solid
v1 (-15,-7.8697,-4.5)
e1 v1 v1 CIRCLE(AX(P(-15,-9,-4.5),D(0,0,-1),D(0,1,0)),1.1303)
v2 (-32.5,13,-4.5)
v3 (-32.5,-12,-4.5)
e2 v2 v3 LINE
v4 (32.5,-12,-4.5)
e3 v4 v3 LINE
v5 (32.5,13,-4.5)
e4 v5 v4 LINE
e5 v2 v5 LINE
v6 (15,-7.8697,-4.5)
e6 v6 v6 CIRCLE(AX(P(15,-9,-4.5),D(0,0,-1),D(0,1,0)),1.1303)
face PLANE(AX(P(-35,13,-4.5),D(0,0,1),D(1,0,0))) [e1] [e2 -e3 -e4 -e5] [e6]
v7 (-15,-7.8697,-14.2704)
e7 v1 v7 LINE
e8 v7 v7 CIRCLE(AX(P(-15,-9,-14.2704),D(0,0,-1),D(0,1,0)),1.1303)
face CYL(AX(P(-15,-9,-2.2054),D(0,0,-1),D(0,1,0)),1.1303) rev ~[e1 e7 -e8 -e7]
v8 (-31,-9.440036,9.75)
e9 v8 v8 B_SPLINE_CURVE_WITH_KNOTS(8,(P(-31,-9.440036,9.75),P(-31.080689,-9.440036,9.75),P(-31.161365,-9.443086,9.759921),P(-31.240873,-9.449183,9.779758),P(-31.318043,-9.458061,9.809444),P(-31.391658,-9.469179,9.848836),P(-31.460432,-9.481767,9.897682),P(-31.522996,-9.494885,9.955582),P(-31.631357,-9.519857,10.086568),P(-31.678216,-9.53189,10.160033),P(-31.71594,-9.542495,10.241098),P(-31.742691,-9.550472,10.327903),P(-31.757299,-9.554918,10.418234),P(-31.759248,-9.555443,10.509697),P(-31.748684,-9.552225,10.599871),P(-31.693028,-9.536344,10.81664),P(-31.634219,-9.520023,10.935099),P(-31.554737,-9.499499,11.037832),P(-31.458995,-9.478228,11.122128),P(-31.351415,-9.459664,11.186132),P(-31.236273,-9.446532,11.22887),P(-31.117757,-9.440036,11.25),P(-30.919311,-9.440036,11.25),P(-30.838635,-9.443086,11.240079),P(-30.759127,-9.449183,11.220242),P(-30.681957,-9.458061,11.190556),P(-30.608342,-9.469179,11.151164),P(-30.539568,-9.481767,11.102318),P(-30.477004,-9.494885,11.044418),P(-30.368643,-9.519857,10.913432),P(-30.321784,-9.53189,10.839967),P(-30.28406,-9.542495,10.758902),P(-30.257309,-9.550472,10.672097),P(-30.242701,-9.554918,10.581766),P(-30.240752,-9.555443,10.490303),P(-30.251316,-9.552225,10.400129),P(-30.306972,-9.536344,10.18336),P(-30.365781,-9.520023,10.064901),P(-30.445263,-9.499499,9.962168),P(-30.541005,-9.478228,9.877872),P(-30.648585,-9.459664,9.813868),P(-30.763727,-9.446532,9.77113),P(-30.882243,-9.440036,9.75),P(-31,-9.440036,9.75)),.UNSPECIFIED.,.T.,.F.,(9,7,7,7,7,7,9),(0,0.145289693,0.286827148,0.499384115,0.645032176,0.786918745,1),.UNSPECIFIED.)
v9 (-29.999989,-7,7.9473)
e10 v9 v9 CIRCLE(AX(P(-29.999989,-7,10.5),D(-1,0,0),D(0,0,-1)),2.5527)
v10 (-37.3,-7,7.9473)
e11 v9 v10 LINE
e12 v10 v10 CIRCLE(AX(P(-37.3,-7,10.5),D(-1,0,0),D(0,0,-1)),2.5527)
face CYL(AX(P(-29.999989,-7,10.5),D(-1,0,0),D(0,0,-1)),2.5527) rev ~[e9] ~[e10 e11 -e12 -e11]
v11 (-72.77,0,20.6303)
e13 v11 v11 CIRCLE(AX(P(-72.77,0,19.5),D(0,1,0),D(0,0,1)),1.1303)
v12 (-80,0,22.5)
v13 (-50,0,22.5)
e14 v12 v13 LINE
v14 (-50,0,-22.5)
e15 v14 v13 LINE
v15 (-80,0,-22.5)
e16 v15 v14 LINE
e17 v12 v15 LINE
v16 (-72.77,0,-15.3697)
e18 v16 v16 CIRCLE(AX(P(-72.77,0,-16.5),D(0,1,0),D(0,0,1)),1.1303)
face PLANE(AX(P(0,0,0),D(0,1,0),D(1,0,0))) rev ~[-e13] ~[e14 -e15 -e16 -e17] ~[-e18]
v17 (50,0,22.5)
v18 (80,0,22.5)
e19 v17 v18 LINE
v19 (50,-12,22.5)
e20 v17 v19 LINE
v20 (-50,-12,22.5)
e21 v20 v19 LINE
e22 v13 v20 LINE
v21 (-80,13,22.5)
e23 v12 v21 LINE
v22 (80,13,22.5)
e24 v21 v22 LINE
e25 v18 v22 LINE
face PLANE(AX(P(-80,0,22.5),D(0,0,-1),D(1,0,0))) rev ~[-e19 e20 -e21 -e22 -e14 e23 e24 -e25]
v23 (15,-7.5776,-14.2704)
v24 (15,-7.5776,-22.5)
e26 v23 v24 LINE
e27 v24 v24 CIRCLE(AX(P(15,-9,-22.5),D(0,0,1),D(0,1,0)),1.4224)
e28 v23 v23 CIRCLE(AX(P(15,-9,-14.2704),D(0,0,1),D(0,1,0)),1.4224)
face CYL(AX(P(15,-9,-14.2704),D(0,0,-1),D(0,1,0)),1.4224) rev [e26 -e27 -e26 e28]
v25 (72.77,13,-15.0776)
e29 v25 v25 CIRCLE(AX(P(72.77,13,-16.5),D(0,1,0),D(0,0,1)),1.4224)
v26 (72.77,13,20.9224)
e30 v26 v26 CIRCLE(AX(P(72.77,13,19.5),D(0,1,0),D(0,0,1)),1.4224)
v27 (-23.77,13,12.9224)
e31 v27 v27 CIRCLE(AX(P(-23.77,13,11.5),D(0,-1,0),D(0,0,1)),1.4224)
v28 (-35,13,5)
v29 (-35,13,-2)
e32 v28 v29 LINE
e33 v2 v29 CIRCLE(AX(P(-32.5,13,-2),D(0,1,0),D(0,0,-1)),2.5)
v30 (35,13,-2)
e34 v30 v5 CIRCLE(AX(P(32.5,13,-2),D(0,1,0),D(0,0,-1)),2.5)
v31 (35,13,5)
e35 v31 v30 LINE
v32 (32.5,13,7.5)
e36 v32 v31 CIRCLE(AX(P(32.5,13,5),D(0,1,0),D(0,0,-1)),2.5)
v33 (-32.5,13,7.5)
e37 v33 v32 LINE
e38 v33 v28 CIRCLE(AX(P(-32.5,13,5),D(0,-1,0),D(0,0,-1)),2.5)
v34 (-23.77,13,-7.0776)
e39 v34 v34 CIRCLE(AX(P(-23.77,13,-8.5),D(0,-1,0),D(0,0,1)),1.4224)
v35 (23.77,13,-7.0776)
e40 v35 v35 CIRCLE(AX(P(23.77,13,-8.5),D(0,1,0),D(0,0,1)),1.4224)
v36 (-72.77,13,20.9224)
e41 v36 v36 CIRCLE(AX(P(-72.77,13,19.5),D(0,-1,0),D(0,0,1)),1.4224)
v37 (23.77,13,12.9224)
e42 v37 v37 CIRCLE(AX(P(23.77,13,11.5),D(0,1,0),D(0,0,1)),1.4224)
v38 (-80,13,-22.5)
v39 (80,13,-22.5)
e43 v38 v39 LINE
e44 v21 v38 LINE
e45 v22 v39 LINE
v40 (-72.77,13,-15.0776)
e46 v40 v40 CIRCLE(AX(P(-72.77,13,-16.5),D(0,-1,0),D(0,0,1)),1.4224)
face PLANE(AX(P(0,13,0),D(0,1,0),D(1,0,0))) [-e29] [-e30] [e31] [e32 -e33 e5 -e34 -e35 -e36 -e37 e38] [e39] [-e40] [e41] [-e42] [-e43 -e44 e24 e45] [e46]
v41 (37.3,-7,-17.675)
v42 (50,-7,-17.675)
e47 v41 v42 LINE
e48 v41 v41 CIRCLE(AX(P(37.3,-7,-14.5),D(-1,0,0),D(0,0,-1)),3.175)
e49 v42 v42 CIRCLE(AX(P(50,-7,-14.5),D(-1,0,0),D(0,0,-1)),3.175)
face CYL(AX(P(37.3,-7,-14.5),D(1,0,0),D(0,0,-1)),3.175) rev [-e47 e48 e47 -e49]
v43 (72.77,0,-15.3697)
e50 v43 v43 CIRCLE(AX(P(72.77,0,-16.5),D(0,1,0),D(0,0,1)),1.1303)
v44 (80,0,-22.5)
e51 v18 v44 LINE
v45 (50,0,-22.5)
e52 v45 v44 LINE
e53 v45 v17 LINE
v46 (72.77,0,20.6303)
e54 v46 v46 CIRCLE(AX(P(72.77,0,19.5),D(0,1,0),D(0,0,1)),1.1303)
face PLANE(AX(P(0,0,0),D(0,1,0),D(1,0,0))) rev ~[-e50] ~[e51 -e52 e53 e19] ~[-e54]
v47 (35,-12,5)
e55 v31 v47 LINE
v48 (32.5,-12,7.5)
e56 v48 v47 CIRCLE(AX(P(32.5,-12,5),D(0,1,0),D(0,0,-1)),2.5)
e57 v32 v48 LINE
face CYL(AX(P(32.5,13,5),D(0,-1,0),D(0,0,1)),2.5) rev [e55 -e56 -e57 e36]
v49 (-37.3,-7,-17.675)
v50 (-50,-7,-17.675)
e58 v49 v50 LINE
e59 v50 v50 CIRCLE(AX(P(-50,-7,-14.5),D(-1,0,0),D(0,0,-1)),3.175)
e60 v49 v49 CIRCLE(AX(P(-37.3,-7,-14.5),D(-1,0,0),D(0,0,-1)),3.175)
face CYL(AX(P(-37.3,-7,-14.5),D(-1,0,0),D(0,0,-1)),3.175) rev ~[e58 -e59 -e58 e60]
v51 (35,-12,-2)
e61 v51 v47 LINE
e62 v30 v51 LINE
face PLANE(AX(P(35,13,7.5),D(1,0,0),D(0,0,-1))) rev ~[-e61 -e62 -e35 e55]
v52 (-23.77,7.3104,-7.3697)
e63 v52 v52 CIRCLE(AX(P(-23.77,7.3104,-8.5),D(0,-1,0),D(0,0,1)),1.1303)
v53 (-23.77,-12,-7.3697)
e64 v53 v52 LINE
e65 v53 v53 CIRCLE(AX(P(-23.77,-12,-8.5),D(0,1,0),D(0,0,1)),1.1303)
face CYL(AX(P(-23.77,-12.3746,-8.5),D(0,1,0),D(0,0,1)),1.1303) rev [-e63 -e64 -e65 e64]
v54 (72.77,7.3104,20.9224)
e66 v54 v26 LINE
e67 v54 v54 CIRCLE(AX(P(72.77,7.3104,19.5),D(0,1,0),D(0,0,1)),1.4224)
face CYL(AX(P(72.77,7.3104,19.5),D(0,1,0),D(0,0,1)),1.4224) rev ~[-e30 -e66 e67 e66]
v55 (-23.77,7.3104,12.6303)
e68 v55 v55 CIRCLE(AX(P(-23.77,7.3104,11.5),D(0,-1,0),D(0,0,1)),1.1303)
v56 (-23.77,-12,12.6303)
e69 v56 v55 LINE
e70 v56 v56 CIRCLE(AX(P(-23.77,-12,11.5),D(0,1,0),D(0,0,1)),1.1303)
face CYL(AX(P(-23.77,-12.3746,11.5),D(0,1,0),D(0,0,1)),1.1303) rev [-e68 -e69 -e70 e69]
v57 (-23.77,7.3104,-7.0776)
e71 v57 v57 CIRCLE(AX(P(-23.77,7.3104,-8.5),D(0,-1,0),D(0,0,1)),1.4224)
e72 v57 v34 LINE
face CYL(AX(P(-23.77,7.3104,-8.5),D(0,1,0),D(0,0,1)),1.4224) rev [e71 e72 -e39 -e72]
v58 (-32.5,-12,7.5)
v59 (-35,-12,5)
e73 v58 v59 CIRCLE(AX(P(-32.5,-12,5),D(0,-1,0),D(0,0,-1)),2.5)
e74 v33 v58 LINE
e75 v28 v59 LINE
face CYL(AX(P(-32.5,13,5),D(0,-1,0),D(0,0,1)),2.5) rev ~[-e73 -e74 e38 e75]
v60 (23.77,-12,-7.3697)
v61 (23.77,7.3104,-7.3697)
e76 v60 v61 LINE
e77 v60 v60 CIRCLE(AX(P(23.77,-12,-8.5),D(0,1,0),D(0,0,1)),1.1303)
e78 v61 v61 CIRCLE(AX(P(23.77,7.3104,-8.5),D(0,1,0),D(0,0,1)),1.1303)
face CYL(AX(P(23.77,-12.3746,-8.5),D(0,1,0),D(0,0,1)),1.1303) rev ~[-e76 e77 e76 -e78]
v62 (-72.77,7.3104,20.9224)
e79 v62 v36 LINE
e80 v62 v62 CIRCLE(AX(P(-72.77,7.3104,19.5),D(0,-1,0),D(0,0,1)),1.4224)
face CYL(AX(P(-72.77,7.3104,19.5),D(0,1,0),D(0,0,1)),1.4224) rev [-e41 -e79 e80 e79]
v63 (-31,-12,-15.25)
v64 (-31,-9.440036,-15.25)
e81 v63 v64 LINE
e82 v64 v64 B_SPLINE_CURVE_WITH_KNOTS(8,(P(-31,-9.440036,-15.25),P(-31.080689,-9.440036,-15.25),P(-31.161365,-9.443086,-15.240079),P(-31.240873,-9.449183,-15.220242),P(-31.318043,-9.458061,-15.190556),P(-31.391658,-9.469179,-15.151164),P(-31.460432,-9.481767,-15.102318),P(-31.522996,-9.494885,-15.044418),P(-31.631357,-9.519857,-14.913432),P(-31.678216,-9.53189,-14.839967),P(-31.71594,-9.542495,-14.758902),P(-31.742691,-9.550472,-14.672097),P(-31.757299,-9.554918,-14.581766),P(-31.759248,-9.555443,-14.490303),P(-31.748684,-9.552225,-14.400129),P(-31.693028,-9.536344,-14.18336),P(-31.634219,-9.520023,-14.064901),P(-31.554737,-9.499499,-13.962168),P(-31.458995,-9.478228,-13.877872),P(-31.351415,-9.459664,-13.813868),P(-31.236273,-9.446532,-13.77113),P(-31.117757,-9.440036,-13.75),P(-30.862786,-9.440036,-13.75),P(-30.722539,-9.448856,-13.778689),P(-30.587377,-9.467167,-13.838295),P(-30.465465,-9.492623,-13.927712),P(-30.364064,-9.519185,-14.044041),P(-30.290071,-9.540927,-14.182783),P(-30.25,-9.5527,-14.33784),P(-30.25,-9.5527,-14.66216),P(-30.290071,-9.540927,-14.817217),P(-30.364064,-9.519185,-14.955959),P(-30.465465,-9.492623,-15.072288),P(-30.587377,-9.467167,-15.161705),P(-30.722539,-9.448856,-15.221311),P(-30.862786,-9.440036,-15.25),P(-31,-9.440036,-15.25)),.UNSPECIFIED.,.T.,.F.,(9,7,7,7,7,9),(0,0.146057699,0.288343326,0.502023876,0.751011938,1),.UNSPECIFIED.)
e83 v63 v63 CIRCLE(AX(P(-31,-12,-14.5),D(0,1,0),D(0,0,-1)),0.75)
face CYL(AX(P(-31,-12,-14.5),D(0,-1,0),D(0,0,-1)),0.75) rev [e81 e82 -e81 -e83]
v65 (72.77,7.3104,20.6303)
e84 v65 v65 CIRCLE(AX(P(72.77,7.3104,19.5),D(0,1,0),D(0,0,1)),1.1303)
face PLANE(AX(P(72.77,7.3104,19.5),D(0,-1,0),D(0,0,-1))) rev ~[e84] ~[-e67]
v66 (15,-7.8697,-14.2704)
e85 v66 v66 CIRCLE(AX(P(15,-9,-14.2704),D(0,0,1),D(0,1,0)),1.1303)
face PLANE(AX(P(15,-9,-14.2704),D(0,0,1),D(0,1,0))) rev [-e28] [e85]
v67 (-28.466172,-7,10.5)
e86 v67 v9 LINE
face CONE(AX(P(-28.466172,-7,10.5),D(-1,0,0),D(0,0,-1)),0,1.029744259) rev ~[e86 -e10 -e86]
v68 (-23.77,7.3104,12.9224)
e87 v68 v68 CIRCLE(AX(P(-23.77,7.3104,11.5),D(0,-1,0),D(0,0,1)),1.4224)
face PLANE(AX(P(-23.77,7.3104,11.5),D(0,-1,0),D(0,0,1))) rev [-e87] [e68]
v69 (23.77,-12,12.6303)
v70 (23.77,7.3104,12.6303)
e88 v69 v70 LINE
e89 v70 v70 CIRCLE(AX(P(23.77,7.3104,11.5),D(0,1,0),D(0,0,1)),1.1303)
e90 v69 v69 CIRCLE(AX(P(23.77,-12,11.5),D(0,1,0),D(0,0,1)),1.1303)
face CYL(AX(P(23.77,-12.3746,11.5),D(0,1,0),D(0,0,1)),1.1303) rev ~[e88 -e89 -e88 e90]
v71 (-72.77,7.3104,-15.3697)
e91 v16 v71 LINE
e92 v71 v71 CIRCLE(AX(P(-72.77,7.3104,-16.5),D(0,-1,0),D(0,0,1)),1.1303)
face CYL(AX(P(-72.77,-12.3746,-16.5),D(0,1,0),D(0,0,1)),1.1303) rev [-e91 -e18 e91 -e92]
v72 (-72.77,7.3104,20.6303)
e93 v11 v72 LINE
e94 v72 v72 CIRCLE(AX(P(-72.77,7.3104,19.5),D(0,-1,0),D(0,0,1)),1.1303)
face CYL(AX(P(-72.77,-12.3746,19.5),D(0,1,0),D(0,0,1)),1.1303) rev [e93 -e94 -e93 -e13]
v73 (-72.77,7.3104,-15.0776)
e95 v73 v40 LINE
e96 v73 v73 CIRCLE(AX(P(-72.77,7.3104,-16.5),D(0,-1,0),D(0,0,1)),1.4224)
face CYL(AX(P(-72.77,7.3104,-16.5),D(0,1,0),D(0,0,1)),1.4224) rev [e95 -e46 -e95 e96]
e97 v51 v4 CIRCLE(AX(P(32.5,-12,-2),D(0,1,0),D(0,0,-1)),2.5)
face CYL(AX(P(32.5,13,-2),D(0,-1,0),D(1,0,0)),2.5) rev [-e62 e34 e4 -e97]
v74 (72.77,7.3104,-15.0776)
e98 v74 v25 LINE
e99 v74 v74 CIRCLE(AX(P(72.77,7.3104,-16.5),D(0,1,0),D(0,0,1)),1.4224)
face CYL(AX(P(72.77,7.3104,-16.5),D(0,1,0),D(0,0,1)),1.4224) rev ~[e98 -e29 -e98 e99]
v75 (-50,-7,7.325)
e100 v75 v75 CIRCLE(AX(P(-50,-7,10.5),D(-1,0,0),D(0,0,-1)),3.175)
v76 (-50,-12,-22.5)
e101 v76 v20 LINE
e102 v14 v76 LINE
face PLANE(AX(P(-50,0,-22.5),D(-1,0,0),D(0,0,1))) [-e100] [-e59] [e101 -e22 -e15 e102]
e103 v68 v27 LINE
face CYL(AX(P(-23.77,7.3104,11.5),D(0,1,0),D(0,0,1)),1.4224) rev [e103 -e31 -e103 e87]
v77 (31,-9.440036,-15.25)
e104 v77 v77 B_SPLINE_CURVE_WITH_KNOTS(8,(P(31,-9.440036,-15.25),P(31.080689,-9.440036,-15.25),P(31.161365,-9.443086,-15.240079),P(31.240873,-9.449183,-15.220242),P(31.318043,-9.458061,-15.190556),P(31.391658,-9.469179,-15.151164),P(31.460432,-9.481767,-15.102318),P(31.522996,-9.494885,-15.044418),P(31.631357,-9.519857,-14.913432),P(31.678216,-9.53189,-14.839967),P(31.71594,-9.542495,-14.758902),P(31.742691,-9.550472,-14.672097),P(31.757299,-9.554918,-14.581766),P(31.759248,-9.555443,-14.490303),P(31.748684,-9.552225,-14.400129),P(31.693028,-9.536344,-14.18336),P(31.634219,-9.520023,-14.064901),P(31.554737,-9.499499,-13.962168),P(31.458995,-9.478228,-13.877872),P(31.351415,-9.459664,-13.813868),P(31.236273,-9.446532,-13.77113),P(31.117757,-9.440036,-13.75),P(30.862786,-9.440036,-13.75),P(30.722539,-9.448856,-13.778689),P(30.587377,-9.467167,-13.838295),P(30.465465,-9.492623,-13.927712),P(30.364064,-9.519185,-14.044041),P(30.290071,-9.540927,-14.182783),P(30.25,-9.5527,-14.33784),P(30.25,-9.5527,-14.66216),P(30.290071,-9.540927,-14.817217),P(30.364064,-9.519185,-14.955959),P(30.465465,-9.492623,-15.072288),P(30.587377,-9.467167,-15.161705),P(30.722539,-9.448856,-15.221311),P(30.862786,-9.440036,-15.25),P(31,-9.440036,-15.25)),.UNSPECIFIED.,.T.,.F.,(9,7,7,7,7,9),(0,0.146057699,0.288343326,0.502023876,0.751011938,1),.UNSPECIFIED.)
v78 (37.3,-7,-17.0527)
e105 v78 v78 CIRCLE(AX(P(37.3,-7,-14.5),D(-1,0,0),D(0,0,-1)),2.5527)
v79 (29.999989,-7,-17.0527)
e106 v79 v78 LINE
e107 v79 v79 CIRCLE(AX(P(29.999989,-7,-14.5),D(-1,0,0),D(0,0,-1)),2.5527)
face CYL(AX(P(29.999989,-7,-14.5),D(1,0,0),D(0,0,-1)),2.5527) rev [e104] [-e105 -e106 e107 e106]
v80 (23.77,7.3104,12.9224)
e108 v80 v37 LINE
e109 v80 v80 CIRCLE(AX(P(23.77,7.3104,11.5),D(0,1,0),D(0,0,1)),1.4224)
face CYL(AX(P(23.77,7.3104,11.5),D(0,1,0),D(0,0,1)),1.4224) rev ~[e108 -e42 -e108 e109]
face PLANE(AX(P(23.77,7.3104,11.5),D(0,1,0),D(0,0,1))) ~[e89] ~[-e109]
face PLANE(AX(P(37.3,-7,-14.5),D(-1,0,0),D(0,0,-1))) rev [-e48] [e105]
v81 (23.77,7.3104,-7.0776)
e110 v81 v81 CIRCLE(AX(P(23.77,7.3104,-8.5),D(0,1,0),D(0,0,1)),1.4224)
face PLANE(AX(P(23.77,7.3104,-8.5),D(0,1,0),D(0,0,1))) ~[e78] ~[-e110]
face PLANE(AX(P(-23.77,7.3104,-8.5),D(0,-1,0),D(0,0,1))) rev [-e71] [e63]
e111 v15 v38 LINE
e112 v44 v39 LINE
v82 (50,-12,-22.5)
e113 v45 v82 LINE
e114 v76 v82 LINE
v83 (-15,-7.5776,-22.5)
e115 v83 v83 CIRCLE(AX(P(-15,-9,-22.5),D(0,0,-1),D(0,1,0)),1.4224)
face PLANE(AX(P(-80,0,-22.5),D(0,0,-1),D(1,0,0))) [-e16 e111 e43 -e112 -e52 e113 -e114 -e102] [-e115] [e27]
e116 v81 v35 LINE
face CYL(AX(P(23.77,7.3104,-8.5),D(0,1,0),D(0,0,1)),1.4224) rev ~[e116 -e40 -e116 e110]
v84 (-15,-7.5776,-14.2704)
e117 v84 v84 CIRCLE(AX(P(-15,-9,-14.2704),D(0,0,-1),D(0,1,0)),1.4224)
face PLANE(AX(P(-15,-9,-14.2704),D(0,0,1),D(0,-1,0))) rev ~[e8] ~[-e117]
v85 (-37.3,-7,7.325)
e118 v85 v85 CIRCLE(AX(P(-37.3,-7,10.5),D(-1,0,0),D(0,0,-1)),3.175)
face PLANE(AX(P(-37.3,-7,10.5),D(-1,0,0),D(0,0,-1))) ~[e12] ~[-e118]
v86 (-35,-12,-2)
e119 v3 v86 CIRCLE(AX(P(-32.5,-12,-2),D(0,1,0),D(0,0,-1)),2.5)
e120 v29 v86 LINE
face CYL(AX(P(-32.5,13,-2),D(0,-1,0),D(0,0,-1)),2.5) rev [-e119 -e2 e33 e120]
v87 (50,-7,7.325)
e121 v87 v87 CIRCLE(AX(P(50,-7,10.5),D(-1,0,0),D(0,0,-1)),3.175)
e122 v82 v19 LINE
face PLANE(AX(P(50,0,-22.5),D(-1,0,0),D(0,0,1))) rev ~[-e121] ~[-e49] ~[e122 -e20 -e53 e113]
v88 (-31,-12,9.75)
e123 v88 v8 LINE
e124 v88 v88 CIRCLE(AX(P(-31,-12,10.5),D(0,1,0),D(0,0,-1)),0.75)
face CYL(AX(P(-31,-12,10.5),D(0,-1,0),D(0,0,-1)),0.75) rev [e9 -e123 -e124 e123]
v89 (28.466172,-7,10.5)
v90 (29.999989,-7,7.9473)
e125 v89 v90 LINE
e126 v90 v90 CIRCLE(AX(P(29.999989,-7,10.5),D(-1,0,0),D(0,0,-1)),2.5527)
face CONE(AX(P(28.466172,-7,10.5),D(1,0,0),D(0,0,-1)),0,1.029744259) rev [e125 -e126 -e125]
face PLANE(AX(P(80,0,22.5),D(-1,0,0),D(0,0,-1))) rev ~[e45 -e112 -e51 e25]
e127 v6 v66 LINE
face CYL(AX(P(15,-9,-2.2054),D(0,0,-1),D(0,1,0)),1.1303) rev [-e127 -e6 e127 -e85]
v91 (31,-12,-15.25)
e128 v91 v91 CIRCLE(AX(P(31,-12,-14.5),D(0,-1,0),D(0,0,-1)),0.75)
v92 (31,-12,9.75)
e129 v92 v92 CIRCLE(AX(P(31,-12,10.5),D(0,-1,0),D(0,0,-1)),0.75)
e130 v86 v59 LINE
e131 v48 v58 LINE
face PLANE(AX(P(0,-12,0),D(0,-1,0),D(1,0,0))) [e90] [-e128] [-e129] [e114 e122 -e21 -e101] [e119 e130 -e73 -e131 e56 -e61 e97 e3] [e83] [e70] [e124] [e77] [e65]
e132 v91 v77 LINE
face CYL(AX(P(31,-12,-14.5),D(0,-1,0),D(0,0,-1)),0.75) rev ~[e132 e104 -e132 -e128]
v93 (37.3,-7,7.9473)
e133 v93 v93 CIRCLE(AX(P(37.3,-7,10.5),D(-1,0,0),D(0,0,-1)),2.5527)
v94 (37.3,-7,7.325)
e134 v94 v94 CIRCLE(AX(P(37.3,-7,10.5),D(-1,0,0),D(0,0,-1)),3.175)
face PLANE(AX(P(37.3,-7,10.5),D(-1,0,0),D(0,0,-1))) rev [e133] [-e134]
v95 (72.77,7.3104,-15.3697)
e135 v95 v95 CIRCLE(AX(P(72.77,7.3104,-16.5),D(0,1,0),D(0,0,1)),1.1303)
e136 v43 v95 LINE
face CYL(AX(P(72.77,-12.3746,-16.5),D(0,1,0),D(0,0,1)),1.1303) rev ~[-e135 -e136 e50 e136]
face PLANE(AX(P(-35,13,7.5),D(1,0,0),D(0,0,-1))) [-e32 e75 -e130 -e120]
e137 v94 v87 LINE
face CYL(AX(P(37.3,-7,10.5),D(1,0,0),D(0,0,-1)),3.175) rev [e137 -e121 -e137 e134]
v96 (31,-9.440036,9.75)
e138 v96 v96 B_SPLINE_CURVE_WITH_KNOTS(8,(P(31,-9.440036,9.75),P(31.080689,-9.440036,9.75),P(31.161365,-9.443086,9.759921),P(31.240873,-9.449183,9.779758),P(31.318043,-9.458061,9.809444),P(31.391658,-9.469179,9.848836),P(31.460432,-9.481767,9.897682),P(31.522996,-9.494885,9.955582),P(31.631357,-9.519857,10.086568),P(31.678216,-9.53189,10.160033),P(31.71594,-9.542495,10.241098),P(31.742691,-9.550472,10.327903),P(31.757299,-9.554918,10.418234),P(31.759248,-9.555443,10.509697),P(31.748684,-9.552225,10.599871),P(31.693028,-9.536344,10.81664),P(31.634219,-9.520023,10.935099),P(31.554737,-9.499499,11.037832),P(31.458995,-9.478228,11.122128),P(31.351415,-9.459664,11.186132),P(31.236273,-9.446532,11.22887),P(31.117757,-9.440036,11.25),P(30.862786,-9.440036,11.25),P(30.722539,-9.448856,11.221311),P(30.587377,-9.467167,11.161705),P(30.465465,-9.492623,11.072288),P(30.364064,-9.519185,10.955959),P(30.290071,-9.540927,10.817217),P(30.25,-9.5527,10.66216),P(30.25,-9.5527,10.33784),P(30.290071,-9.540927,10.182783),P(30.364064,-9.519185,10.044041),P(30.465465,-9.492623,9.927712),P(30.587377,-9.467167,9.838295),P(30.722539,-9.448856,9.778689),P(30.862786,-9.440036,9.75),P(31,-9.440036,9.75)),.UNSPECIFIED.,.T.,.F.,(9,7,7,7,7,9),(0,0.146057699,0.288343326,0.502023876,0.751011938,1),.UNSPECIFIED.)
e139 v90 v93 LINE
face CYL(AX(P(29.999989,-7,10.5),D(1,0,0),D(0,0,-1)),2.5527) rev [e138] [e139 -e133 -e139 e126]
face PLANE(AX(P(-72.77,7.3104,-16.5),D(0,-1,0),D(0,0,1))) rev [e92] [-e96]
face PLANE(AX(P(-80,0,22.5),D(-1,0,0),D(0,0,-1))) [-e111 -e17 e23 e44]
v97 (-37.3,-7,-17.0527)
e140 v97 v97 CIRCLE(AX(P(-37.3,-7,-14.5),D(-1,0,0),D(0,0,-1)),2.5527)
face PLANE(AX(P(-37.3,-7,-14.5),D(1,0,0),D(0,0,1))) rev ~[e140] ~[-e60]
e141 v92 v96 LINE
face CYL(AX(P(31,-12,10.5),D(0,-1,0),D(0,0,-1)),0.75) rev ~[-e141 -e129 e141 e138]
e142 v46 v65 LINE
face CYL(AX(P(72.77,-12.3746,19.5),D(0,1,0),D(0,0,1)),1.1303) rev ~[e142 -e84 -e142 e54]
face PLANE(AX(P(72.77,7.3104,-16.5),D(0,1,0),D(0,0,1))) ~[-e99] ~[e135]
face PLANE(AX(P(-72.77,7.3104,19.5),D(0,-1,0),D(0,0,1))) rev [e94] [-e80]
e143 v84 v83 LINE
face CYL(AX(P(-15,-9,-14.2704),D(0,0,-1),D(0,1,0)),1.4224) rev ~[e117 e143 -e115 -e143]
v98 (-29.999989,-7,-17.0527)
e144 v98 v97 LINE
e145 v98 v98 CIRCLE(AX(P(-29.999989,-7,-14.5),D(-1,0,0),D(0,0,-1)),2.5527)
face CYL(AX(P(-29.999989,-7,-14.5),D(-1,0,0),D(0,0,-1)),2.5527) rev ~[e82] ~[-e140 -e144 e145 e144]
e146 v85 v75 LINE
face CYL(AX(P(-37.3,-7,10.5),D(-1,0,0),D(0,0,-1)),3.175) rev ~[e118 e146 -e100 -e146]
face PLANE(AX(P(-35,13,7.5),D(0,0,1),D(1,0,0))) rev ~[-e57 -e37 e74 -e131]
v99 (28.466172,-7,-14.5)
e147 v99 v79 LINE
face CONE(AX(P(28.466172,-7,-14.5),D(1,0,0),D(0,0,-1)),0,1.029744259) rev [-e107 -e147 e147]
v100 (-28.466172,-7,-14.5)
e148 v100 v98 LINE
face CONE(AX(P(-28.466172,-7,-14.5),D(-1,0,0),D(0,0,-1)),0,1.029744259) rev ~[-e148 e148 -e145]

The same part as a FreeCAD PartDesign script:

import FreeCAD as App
import Part
import Sketcher
from FreeCAD import Vector
Q = App.Units.Quantity


def edges_at(feature, points):
    """Names of the edges that pass closest to the given points."""
    edges = feature.Shape.Edges
    near = lambda p: min(range(len(edges)), key=lambda i: edges[i].distToShape(Part.Vertex(*p))[0])
    return sorted({f"Edge{near(p) + 1}" for p in points})

doc = App.newDocument("Part")
params = doc.addObject("Spreadsheet::Sheet", "Params")
for row, (alias, value) in enumerate([
    ("sketch1_width", "160 mm"),
    ("sketch1_height", "45 mm"),
    ("pad1_length", "13 mm"),
    ("sketch2_width", "100 mm"),
    ("sketch2_height", "45 mm"),
    ("pad2_length", "12 mm"),
    ("sketch3_width", "70 mm"),
    ("sketch3_height", "12 mm"),
    ("fillet_radius", "2.5 mm"),
    ("groove_angle", "360 deg"),
    ("linearpattern_pitch", "49.648766 mm"),
    ("linearpattern2_pitch", "56.435804 mm"),
    ("linearpattern3_pitch", "36 mm"),
    ("groove2_angle", "360 deg"),
    ("groove3_angle", "360 deg"),
    ("groove4_angle", "360 deg"),
    ("sketch8_width", "12.7 mm"),
    ("groove5_angle", "360 deg"),
    ("linearpattern4_pitch", "25 mm"),
    ("sketch9_diameter", "1.5 mm"),
    ("pocket2_length", "7 mm"),
    ("sketch10_width", "12.7 mm"),
    ("groove6_angle", "360 deg"),
    ("groove7_angle", "360 deg"),
], start=1):
    params.set(f"A{row}", alias)
    params.set(f"B{row}", "=" + value)
    params.setAlias(f"B{row}", alias)

body = doc.addObject("PartDesign::Body", "Body")

sketch1 = body.newObject("Sketcher::SketchObject", "Sketch")
sketch1.AttachmentSupport = (doc.getObject("XZ_Plane"), [""])
sketch1.MapMode = "FlatFace"
sketch1.addGeometry([
    Part.LineSegment(Vector(-80, -22, 0), Vector(-80, 22, 0)),
    Part.LineSegment(Vector(-80, 22, 0), Vector(80, 22, 0)),
    Part.LineSegment(Vector(80, 22, 0), Vector(80, -22, 0)),
    Part.LineSegment(Vector(80, -22, 0), Vector(-80, -22, 0)),
], False)
sketch1.addConstraint([
    Sketcher.Constraint("Coincident", 0, 2, 1, 1),
    Sketcher.Constraint("Coincident", 1, 2, 2, 1),
    Sketcher.Constraint("Coincident", 2, 2, 3, 1),
    Sketcher.Constraint("Coincident", 3, 2, 0, 1),
    Sketcher.Constraint("Vertical", 0),
    Sketcher.Constraint("Horizontal", 1),
    Sketcher.Constraint("Vertical", 2),
    Sketcher.Constraint("Horizontal", 3),
    Sketcher.Constraint("Symmetric", 0, 2, 2, 2, -1, 1),
    Sketcher.Constraint("DistanceX", 1, 1, 1, 2, Q("160 mm")),
    Sketcher.Constraint("DistanceY", 0, 1, 0, 2, Q("45 mm")),
])
sketch1.setExpression("Constraints[9]", "Params.sketch1_width")
sketch1.setExpression("Constraints[10]", "Params.sketch1_height")
pad1 = body.newObject("PartDesign::Pad", "Pad")
pad1.Profile = sketch1
pad1.setExpression("Length", "Params.pad1_length")
pad1.Reversed = True

sketch2 = body.newObject("Sketcher::SketchObject", "Sketch001")
sketch2.AttachmentSupport = (doc.getObject("XZ_Plane"), [""])
sketch2.MapMode = "FlatFace"
sketch2.addGeometry([
    Part.LineSegment(Vector(-50, 22, 0), Vector(-50, -22, 0)),
    Part.LineSegment(Vector(-50, -22, 0), Vector(50, -22, 0)),
    Part.LineSegment(Vector(50, -22, 0), Vector(50, 22, 0)),
    Part.LineSegment(Vector(50, 22, 0), Vector(-50, 22, 0)),
], False)
sketch2.addConstraint([
    Sketcher.Constraint("Coincident", 0, 2, 1, 1),
    Sketcher.Constraint("Coincident", 1, 2, 2, 1),
    Sketcher.Constraint("Coincident", 2, 2, 3, 1),
    Sketcher.Constraint("Coincident", 3, 2, 0, 1),
    Sketcher.Constraint("Vertical", 0),
    Sketcher.Constraint("Horizontal", 1),
    Sketcher.Constraint("Vertical", 2),
    Sketcher.Constraint("Horizontal", 3),
    Sketcher.Constraint("Symmetric", 0, 2, 2, 2, -1, 1),
    Sketcher.Constraint("DistanceX", 1, 1, 1, 2, Q("100 mm")),
    Sketcher.Constraint("DistanceY", 0, 2, 0, 1, Q("45 mm")),
])
sketch2.setExpression("Constraints[9]", "Params.sketch2_width")
sketch2.setExpression("Constraints[10]", "Params.sketch2_height")
pad2 = body.newObject("PartDesign::Pad", "Pad001")
pad2.Profile = sketch2
pad2.setExpression("Length", "Params.pad2_length")

sketch3 = body.newObject("Sketcher::SketchObject", "Sketch002")
sketch3.AttachmentSupport = (doc.getObject("XZ_Plane"), [""])
sketch3.MapMode = "FlatFace"
sketch3.AttachmentOffset = App.Placement(Vector(0, 0, -13), App.Rotation())
sketch3.addGeometry([
    Part.LineSegment(Vector(-35, -4, 0), Vector(-35, 8, 0)),
    Part.LineSegment(Vector(-35, 8, 0), Vector(35, 8, 0)),
    Part.LineSegment(Vector(35, 8, 0), Vector(35, -4, 0)),
    Part.LineSegment(Vector(35, -4, 0), Vector(-35, -4, 0)),
], False)
sketch3.addConstraint([
    Sketcher.Constraint("Coincident", 0, 2, 1, 1),
    Sketcher.Constraint("Coincident", 1, 2, 2, 1),
    Sketcher.Constraint("Coincident", 2, 2, 3, 1),
    Sketcher.Constraint("Coincident", 3, 2, 0, 1),
    Sketcher.Constraint("Vertical", 0),
    Sketcher.Constraint("Horizontal", 1),
    Sketcher.Constraint("Vertical", 2),
    Sketcher.Constraint("Horizontal", 3),
    Sketcher.Constraint("DistanceX", 1, 1, 1, 2, Q("70 mm")),
    Sketcher.Constraint("DistanceY", 0, 1, 0, 2, Q("12 mm")),
    Sketcher.Constraint("DistanceX", 0, 2, -1, 1, Q("35 mm")),
    Sketcher.Constraint("DistanceY", -1, 1, 0, 2, Q("7.5 mm")),
])
sketch3.setExpression("Constraints[8]", "Params.sketch3_width")
sketch3.setExpression("Constraints[9]", "Params.sketch3_height")
pocket1 = body.newObject("PartDesign::Pocket", "Pocket")
pocket1.Profile = sketch3
pocket1.Type = "ThroughAll"
pocket1.Reversed = True
doc.recompute()

fillet = body.newObject("PartDesign::Fillet", "Fillet")
fillet.Base = (pocket1, edges_at(pocket1, [
    (-35, 0.5, 7.5),
    (-35, 0.5, -4.5),
    (35, 0.5, -4.5),
    (35, 0.5, 7.5),
]))
fillet.setExpression("Radius", "Params.fillet_radius")

sketch4 = body.newObject("Sketcher::SketchObject", "Sketch003")
sketch4.AttachmentSupport = (doc.getObject("YZ_Plane"), [""])
sketch4.MapMode = "FlatFace"
sketch4.AttachmentOffset = App.Placement(Vector(0, 0, -72.77), App.Rotation())
sketch4.addGeometry([
    Part.LineSegment(Vector(-13.05, 19.5, 0), Vector(13, 19.5, 0)),
    Part.LineSegment(Vector(13, 19.5, 0), Vector(13, 20.92, 0)),
    Part.LineSegment(Vector(13, 20.92, 0), Vector(7.31, 20.92, 0)),
    Part.LineSegment(Vector(7.31, 20.92, 0), Vector(7.31, 20.63, 0)),
    Part.LineSegment(Vector(7.31, 20.63, 0), Vector(-12.37, 20.63, 0)),
    Part.LineSegment(Vector(-12.37, 20.63, 0), Vector(-13.05, 19.5, 0)),
], False)
sketch4.addGeometry(Part.LineSegment(Vector(13, 19.5, 0), Vector(-13.05, 19.5, 0)), True)
sketch4.addConstraint([
    Sketcher.Constraint("Coincident", 0, 2, 1, 1),
    Sketcher.Constraint("Coincident", 1, 2, 2, 1),
    Sketcher.Constraint("Coincident", 2, 2, 3, 1),
    Sketcher.Constraint("Coincident", 3, 2, 4, 1),
    Sketcher.Constraint("Coincident", 4, 2, 5, 1),
    Sketcher.Constraint("Coincident", 5, 2, 0, 1),
    Sketcher.Constraint("Horizontal", 0),
    Sketcher.Constraint("Vertical", 1),
    Sketcher.Constraint("Horizontal", 2),
    Sketcher.Constraint("Vertical", 3),
    Sketcher.Constraint("Horizontal", 4),
    Sketcher.Constraint("Horizontal", 6),
    Sketcher.Constraint("Coincident", 6, 1, 0, 2),
    Sketcher.Constraint("Equal", 0, 6),
    Sketcher.Constraint("Angle", 5, Q("-121 deg")),
    Sketcher.Constraint("DistanceX", -1, 1, 0, 2, Q("13 mm")),
    Sketcher.Constraint("DistanceY", -1, 1, 0, 2, Q("19.5 mm")),
    Sketcher.Constraint("DistanceX", 4, 2, 4, 1, Q("19.685 mm")),
    Sketcher.Constraint("DistanceX", 2, 2, 2, 1, Q("5.6896 mm")),
    Sketcher.Constraint("DistanceY", 1, 1, 1, 2, Q("1.4224 mm")),
    Sketcher.Constraint("DistanceY", 3, 2, 3, 1, Q("0.2921 mm")),
])
groove = body.newObject("PartDesign::Groove", "Groove")
groove.Profile = sketch4
groove.ReferenceAxis = (sketch4, ["Axis0"])
groove.setExpression("Angle", "Params.groove_angle")
doc.recompute()

datumline = body.newObject("PartDesign::Line", "DatumLine")
datumline.Placement = App.Placement(Vector(0, 0, 0), App.Rotation(Vector(0, 0, 1), Vector(0.986932881, 0, -0.161131899)))
linearpattern = body.newObject("PartDesign::LinearPattern", "LinearPattern")
linearpattern.Originals = [groove]
linearpattern.Direction = (datumline, [""])
linearpattern.Mode = "offset"
linearpattern.setExpression("Offset", "Params.linearpattern_pitch")
linearpattern.Occurrences = 2
body.Tip = linearpattern
doc.recompute()

datumline2 = body.newObject("PartDesign::Line", "DatumLine001")
datumline2.Placement = App.Placement(Vector(0, 0, 0), App.Rotation(Vector(0, 0, 1), Vector(0.868243142, 0, -0.496138938)))
linearpattern2 = body.newObject("PartDesign::LinearPattern", "LinearPattern001")
linearpattern2.Originals = [groove]
linearpattern2.Direction = (datumline2, [""])
linearpattern2.Mode = "offset"
linearpattern2.setExpression("Offset", "Params.linearpattern2_pitch")
linearpattern2.Occurrences = 2
body.Tip = linearpattern2
doc.recompute()

linearpattern3 = body.newObject("PartDesign::LinearPattern", "LinearPattern002")
linearpattern3.Originals = [groove]
linearpattern3.Direction = (doc.getObject("Z_Axis"), [""])
linearpattern3.Mode = "offset"
linearpattern3.setExpression("Offset", "Params.linearpattern3_pitch")
linearpattern3.Occurrences = 2
linearpattern3.Reversed = True
body.Tip = linearpattern3
doc.recompute()

mirrored = body.newObject("PartDesign::Mirrored", "Mirrored")
mirrored.Originals = [groove]
mirrored.MirrorPlane = (doc.getObject("YZ_Plane"), [""])
body.Tip = mirrored

sketch5 = body.newObject("Sketcher::SketchObject", "Sketch004")
sketch5.AttachmentSupport = (doc.getObject("YZ_Plane"), [""])
sketch5.MapMode = "FlatFace"
sketch5.AttachmentOffset = App.Placement(Vector(0, 0, 23.77), App.Rotation())
sketch5.addGeometry([
    Part.LineSegment(Vector(13, 11.5, 0), Vector(-13.05, 11.5, 0)),
    Part.LineSegment(Vector(-13.05, 11.5, 0), Vector(-12.37, 12.63, 0)),
    Part.LineSegment(Vector(-12.37, 12.63, 0), Vector(7.31, 12.63, 0)),
    Part.LineSegment(Vector(7.31, 12.63, 0), Vector(7.31, 12.92, 0)),
    Part.LineSegment(Vector(7.31, 12.92, 0), Vector(13, 12.92, 0)),
    Part.LineSegment(Vector(13, 12.92, 0), Vector(13, 11.5, 0)),
], False)
sketch5.addGeometry(Part.LineSegment(Vector(-13.05, 11.5, 0), Vector(13, 11.5, 0)), True)
sketch5.addConstraint([
    Sketcher.Constraint("Coincident", 0, 2, 1, 1),
    Sketcher.Constraint("Coincident", 1, 2, 2, 1),
    Sketcher.Constraint("Coincident", 2, 2, 3, 1),
    Sketcher.Constraint("Coincident", 3, 2, 4, 1),
    Sketcher.Constraint("Coincident", 4, 2, 5, 1),
    Sketcher.Constraint("Coincident", 5, 2, 0, 1),
    Sketcher.Constraint("Horizontal", 0),
    Sketcher.Constraint("Horizontal", 2),
    Sketcher.Constraint("Vertical", 3),
    Sketcher.Constraint("Horizontal", 4),
    Sketcher.Constraint("Vertical", 5),
    Sketcher.Constraint("Horizontal", 6),
    Sketcher.Constraint("Coincident", 6, 1, 0, 2),
    Sketcher.Constraint("Vertical", 4, 2, 6, 2),
    Sketcher.Constraint("Angle", 1, Q("59 deg")),
    Sketcher.Constraint("DistanceX", -1, 1, 4, 2, Q("13 mm")),
    Sketcher.Constraint("DistanceY", -1, 1, 0, 2, Q("11.5 mm")),
    Sketcher.Constraint("DistanceX", 2, 1, 2, 2, Q("19.685 mm")),
    Sketcher.Constraint("DistanceX", 4, 1, 4, 2, Q("5.6896 mm")),
    Sketcher.Constraint("DistanceY", 3, 1, 3, 2, Q("0.2921 mm")),
    Sketcher.Constraint("DistanceY", 5, 2, 5, 1, Q("1.4224 mm")),
])
groove2 = body.newObject("PartDesign::Groove", "Groove001")
groove2.Profile = sketch5
groove2.ReferenceAxis = (sketch5, ["Axis0"])
groove2.setExpression("Angle", "Params.groove2_angle")

sketch6 = body.newObject("Sketcher::SketchObject", "Sketch005")
sketch6.AttachmentSupport = (doc.getObject("YZ_Plane"), [""])
sketch6.MapMode = "FlatFace"
sketch6.AttachmentOffset = App.Placement(Vector(0, 0, 23.77), App.Rotation())
sketch6.addGeometry([
    Part.LineSegment(Vector(13, -8.5, 0), Vector(-13.05, -8.5, 0)),
    Part.LineSegment(Vector(-13.05, -8.5, 0), Vector(-12.37, -7.37, 0)),
    Part.LineSegment(Vector(-12.37, -7.37, 0), Vector(7.31, -7.37, 0)),
    Part.LineSegment(Vector(7.31, -7.37, 0), Vector(7.31, -7.08, 0)),
    Part.LineSegment(Vector(7.31, -7.08, 0), Vector(13, -7.08, 0)),
    Part.LineSegment(Vector(13, -7.08, 0), Vector(13, -8.5, 0)),
], False)
sketch6.addGeometry(Part.LineSegment(Vector(-13.05, -8.5, 0), Vector(13, -8.5, 0)), True)
sketch6.addConstraint([
    Sketcher.Constraint("Coincident", 0, 2, 1, 1),
    Sketcher.Constraint("Coincident", 1, 2, 2, 1),
    Sketcher.Constraint("Coincident", 2, 2, 3, 1),
    Sketcher.Constraint("Coincident", 3, 2, 4, 1),
    Sketcher.Constraint("Coincident", 4, 2, 5, 1),
    Sketcher.Constraint("Coincident", 5, 2, 0, 1),
    Sketcher.Constraint("Horizontal", 0),
    Sketcher.Constraint("Horizontal", 2),
    Sketcher.Constraint("Vertical", 3),
    Sketcher.Constraint("Horizontal", 4),
    Sketcher.Constraint("Vertical", 5),
    Sketcher.Constraint("Horizontal", 6),
    Sketcher.Constraint("Coincident", 6, 1, 0, 2),
    Sketcher.Constraint("Vertical", 4, 2, 6, 2),
    Sketcher.Constraint("Angle", 1, Q("59 deg")),
    Sketcher.Constraint("DistanceX", -1, 1, 4, 2, Q("13 mm")),
    Sketcher.Constraint("DistanceY", 0, 2, -1, 1, Q("8.5 mm")),
    Sketcher.Constraint("DistanceX", 2, 1, 2, 2, Q("19.685 mm")),
    Sketcher.Constraint("DistanceX", 4, 1, 4, 2, Q("5.6896 mm")),
    Sketcher.Constraint("DistanceY", 3, 1, 3, 2, Q("0.2921 mm")),
    Sketcher.Constraint("DistanceY", 5, 2, 5, 1, Q("1.4224 mm")),
])
groove3 = body.newObject("PartDesign::Groove", "Groove002")
groove3.Profile = sketch6
groove3.ReferenceAxis = (sketch6, ["Axis0"])
groove3.setExpression("Angle", "Params.groove3_angle")

sketch7 = body.newObject("Sketcher::SketchObject", "Sketch006")
sketch7.AttachmentSupport = (doc.getObject("YZ_Plane"), [""])
sketch7.MapMode = "FlatFace"
sketch7.AttachmentOffset = App.Placement(Vector(0, 0, 72.77), App.Rotation())
sketch7.addGeometry([
    Part.LineSegment(Vector(13, -16.5, 0), Vector(-13.05, -16.5, 0)),
    Part.LineSegment(Vector(-13.05, -16.5, 0), Vector(-12.37, -15.37, 0)),
    Part.LineSegment(Vector(-12.37, -15.37, 0), Vector(7.31, -15.37, 0)),
    Part.LineSegment(Vector(7.31, -15.37, 0), Vector(7.31, -15.08, 0)),
    Part.LineSegment(Vector(7.31, -15.08, 0), Vector(13, -15.08, 0)),
    Part.LineSegment(Vector(13, -15.08, 0), Vector(13, -16.5, 0)),
], False)
sketch7.addGeometry(Part.LineSegment(Vector(-13.05, -16.5, 0), Vector(13, -16.5, 0)), True)
sketch7.addConstraint([
    Sketcher.Constraint("Coincident", 0, 2, 1, 1),
    Sketcher.Constraint("Coincident", 1, 2, 2, 1),
    Sketcher.Constraint("Coincident", 2, 2, 3, 1),
    Sketcher.Constraint("Coincident", 3, 2, 4, 1),
    Sketcher.Constraint("Coincident", 4, 2, 5, 1),
    Sketcher.Constraint("Coincident", 5, 2, 0, 1),
    Sketcher.Constraint("Horizontal", 0),
    Sketcher.Constraint("Horizontal", 2),
    Sketcher.Constraint("Vertical", 3),
    Sketcher.Constraint("Horizontal", 4),
    Sketcher.Constraint("Vertical", 5),
    Sketcher.Constraint("Horizontal", 6),
    Sketcher.Constraint("Coincident", 6, 1, 0, 2),
    Sketcher.Constraint("Vertical", 4, 2, 6, 2),
    Sketcher.Constraint("Angle", 1, Q("59 deg")),
    Sketcher.Constraint("DistanceX", -1, 1, 4, 2, Q("13 mm")),
    Sketcher.Constraint("DistanceY", 0, 2, -1, 1, Q("16.5 mm")),
    Sketcher.Constraint("DistanceX", 2, 1, 2, 2, Q("19.685 mm")),
    Sketcher.Constraint("DistanceX", 4, 1, 4, 2, Q("5.6896 mm")),
    Sketcher.Constraint("DistanceY", 3, 1, 3, 2, Q("0.2921 mm")),
    Sketcher.Constraint("DistanceY", 5, 2, 5, 1, Q("1.4224 mm")),
])
groove4 = body.newObject("PartDesign::Groove", "Groove003")
groove4.Profile = sketch7
groove4.ReferenceAxis = (sketch7, ["Axis0"])
groove4.setExpression("Angle", "Params.groove4_angle")

sketch8 = body.newObject("Sketcher::SketchObject", "Sketch007")
sketch8.AttachmentSupport = (doc.getObject("XZ_Plane"), [""])
sketch8.MapMode = "FlatFace"
sketch8.AttachmentOffset = App.Placement(Vector(0, 0, 7), App.Rotation())
sketch8.addGeometry([
    Part.LineSegment(Vector(28.5, -14.5, 0), Vector(50, -14.5, 0)),
    Part.LineSegment(Vector(50, -14.5, 0), Vector(50, -17.7, 0)),
    Part.LineSegment(Vector(50, -17.7, 0), Vector(37.3, -17.7, 0)),
    Part.LineSegment(Vector(37.3, -17.7, 0), Vector(37.3, -17.1, 0)),
    Part.LineSegment(Vector(37.3, -17.1, 0), Vector(30, -17.1, 0)),
    Part.LineSegment(Vector(30, -17.1, 0), Vector(28.5, -14.5, 0)),
], False)
sketch8.addGeometry(Part.LineSegment(Vector(50, -14.5, 0), Vector(28.5, -14.5, 0)), True)
sketch8.addConstraint([
    Sketcher.Constraint("Coincident", 0, 2, 1, 1),
    Sketcher.Constraint("Coincident", 1, 2, 2, 1),
    Sketcher.Constraint("Coincident", 2, 2, 3, 1),
    Sketcher.Constraint("Coincident", 3, 2, 4, 1),
    Sketcher.Constraint("Coincident", 4, 2, 5, 1),
    Sketcher.Constraint("Coincident", 5, 2, 0, 1),
    Sketcher.Constraint("Horizontal", 0),
    Sketcher.Constraint("Vertical", 1),
    Sketcher.Constraint("Horizontal", 2),
    Sketcher.Constraint("Vertical", 3),
    Sketcher.Constraint("Horizontal", 4),
    Sketcher.Constraint("Horizontal", 6),
    Sketcher.Constraint("Coincident", 6, 1, 0, 2),
    Sketcher.Constraint("Equal", 0, 6),
    Sketcher.Constraint("Angle", 5, Q("121 deg")),
    Sketcher.Constraint("DistanceX", 2, 2, 2, 1, Q("12.7 mm")),
    Sketcher.Constraint("DistanceX", -1, 1, 0, 2, Q("50 mm")),
    Sketcher.Constraint("DistanceY", 0, 2, -1, 1, Q("14.5 mm")),
    Sketcher.Constraint("DistanceY", 1, 2, 1, 1, Q("3.175 mm")),
    Sketcher.Constraint("DistanceY", 3, 1, 3, 2, Q("0.6223 mm")),
    Sketcher.Constraint("DistanceX", 4, 2, 4, 1, Q("7.300011 mm")),
])
sketch8.setExpression("Constraints[15]", "Params.sketch8_width")
groove5 = body.newObject("PartDesign::Groove", "Groove004")
groove5.Profile = sketch8
groove5.ReferenceAxis = (sketch8, ["Axis0"])
groove5.setExpression("Angle", "Params.groove5_angle")
doc.recompute()

linearpattern4 = body.newObject("PartDesign::LinearPattern", "LinearPattern003")
linearpattern4.Originals = [groove5]
linearpattern4.Direction = (doc.getObject("Z_Axis"), [""])
linearpattern4.Mode = "offset"
linearpattern4.setExpression("Offset", "Params.linearpattern4_pitch")
linearpattern4.Occurrences = 2
body.Tip = linearpattern4

sketch9 = body.newObject("Sketcher::SketchObject", "Sketch008")
sketch9.AttachmentSupport = (doc.getObject("XZ_Plane"), [""])
sketch9.MapMode = "FlatFace"
sketch9.AttachmentOffset = App.Placement(Vector(0, 0, 12), App.Rotation())
sketch9.addGeometry([
    Part.Circle(Vector(31, -14.5, 0), Vector(0, 0, 1), 0.8),
    Part.Circle(Vector(31, 10.5, 0), Vector(0, 0, 1), 0.8),
], False)
sketch9.addConstraint([
    Sketcher.Constraint("Equal", 0, 1),
    Sketcher.Constraint("Vertical", 0, 3, 1, 3),
    Sketcher.Constraint("Diameter", 0, Q("1.5 mm")),
    Sketcher.Constraint("DistanceX", -1, 1, 0, 3, Q("31 mm")),
    Sketcher.Constraint("DistanceY", 0, 3, 1, 3, Q("25 mm")),
    Sketcher.Constraint("DistanceY", 0, 3, -1, 1, Q("14.5 mm")),
])
sketch9.setExpression("Constraints[2]", "Params.sketch9_diameter")
pocket2 = body.newObject("PartDesign::Pocket", "Pocket001")
pocket2.Profile = sketch9
pocket2.setExpression("Length", "Params.pocket2_length")
doc.recompute()

mirrored2 = body.newObject("PartDesign::Mirrored", "Mirrored001")
mirrored2.Originals = [pocket2, groove5]
mirrored2.MirrorPlane = (doc.getObject("YZ_Plane"), [""])
body.Tip = mirrored2

sketch10 = body.newObject("Sketcher::SketchObject", "Sketch009")
sketch10.AttachmentSupport = (doc.getObject("XZ_Plane"), [""])
sketch10.MapMode = "FlatFace"
sketch10.AttachmentOffset = App.Placement(Vector(0, 0, 7), App.Rotation())
sketch10.addGeometry([
    Part.LineSegment(Vector(-50, 10.5, 0), Vector(-28.5, 10.5, 0)),
    Part.LineSegment(Vector(-28.5, 10.5, 0), Vector(-30, 7.9, 0)),
    Part.LineSegment(Vector(-30, 7.9, 0), Vector(-37.3, 7.9, 0)),
    Part.LineSegment(Vector(-37.3, 7.9, 0), Vector(-37.3, 7.3, 0)),
    Part.LineSegment(Vector(-37.3, 7.3, 0), Vector(-50, 7.3, 0)),
    Part.LineSegment(Vector(-50, 7.3, 0), Vector(-50, 10.5, 0)),
], False)
sketch10.addGeometry(Part.LineSegment(Vector(-28.5, 10.5, 0), Vector(-50, 10.5, 0)), True)
sketch10.addConstraint([
    Sketcher.Constraint("Coincident", 0, 2, 1, 1),
    Sketcher.Constraint("Coincident", 1, 2, 2, 1),
    Sketcher.Constraint("Coincident", 2, 2, 3, 1),
    Sketcher.Constraint("Coincident", 3, 2, 4, 1),
    Sketcher.Constraint("Coincident", 4, 2, 5, 1),
    Sketcher.Constraint("Coincident", 5, 2, 0, 1),
    Sketcher.Constraint("Horizontal", 0),
    Sketcher.Constraint("Horizontal", 2),
    Sketcher.Constraint("Vertical", 3),
    Sketcher.Constraint("Horizontal", 4),
    Sketcher.Constraint("Vertical", 5),
    Sketcher.Constraint("Horizontal", 6),
    Sketcher.Constraint("Coincident", 6, 1, 0, 2),
    Sketcher.Constraint("Vertical", 4, 2, 6, 2),
    Sketcher.Constraint("Angle", 1, Q("-121 deg")),
    Sketcher.Constraint("DistanceX", 4, 2, 4, 1, Q("12.7 mm")),
    Sketcher.Constraint("DistanceX", 4, 2, -1, 1, Q("50 mm")),
    Sketcher.Constraint("DistanceY", -1, 1, 0, 2, Q("10.5 mm")),
    Sketcher.Constraint("DistanceY", 5, 1, 5, 2, Q("3.175 mm")),
    Sketcher.Constraint("DistanceY", 3, 2, 3, 1, Q("0.6223 mm")),
    Sketcher.Constraint("DistanceX", 2, 2, 2, 1, Q("7.300011 mm")),
])
sketch10.setExpression("Constraints[15]", "Params.sketch10_width")
groove6 = body.newObject("PartDesign::Groove", "Groove005")
groove6.Profile = sketch10
groove6.ReferenceAxis = (sketch10, ["Axis0"])
groove6.setExpression("Angle", "Params.groove6_angle")

sketch11 = body.newObject("Sketcher::SketchObject", "Sketch010")
sketch11.AttachmentSupport = (doc.getObject("YZ_Plane"), [""])
sketch11.MapMode = "FlatFace"
sketch11.AttachmentOffset = App.Placement(Vector(0, 0, 15), App.Rotation())
sketch11.addGeometry([
    Part.LineSegment(Vector(-9, -1.53, 0), Vector(-9, -22.5, 0)),
    Part.LineSegment(Vector(-9, -22.5, 0), Vector(-7.58, -22.5, 0)),
    Part.LineSegment(Vector(-7.58, -22.5, 0), Vector(-7.58, -14.27, 0)),
    Part.LineSegment(Vector(-7.58, -14.27, 0), Vector(-7.87, -14.27, 0)),
    Part.LineSegment(Vector(-7.87, -14.27, 0), Vector(-7.87, -2.21, 0)),
    Part.LineSegment(Vector(-7.87, -2.21, 0), Vector(-9, -1.53, 0)),
], False)
sketch11.addGeometry(Part.LineSegment(Vector(-9, -22.5, 0), Vector(-9, -1.53, 0)), True)
sketch11.addConstraint([
    Sketcher.Constraint("Coincident", 0, 2, 1, 1),
    Sketcher.Constraint("Coincident", 1, 2, 2, 1),
    Sketcher.Constraint("Coincident", 2, 2, 3, 1),
    Sketcher.Constraint("Coincident", 3, 2, 4, 1),
    Sketcher.Constraint("Coincident", 4, 2, 5, 1),
    Sketcher.Constraint("Coincident", 5, 2, 0, 1),
    Sketcher.Constraint("Vertical", 0),
    Sketcher.Constraint("Horizontal", 1),
    Sketcher.Constraint("Vertical", 2),
    Sketcher.Constraint("Horizontal", 3),
    Sketcher.Constraint("Vertical", 4),
    Sketcher.Constraint("Vertical", 6),
    Sketcher.Constraint("Coincident", 6, 1, 0, 2),
    Sketcher.Constraint("Equal", 0, 6),
    Sketcher.Constraint("Angle", 5, Q("149 deg")),
    Sketcher.Constraint("DistanceX", 0, 2, -1, 1, Q("9 mm")),
    Sketcher.Constraint("DistanceY", 0, 2, -1, 1, Q("22.5 mm")),
    Sketcher.Constraint("DistanceY", 4, 1, 4, 2, Q("12.065 mm")),
    Sketcher.Constraint("DistanceX", 1, 1, 1, 2, Q("1.4224 mm")),
    Sketcher.Constraint("DistanceX", 3, 2, 3, 1, Q("0.2921 mm")),
    Sketcher.Constraint("DistanceY", 2, 1, 2, 2, Q("8.2296 mm")),
])
groove7 = body.newObject("PartDesign::Groove", "Groove006")
groove7.Profile = sketch11
groove7.ReferenceAxis = (sketch11, ["Axis0"])
groove7.setExpression("Angle", "Params.groove7_angle")
doc.recompute()

mirrored3 = body.newObject("PartDesign::Mirrored", "Mirrored002")
mirrored3.Originals = [groove7]
mirrored3.MirrorPlane = (doc.getObject("YZ_Plane"), [""])
body.Tip = mirrored3

doc.recompute()
